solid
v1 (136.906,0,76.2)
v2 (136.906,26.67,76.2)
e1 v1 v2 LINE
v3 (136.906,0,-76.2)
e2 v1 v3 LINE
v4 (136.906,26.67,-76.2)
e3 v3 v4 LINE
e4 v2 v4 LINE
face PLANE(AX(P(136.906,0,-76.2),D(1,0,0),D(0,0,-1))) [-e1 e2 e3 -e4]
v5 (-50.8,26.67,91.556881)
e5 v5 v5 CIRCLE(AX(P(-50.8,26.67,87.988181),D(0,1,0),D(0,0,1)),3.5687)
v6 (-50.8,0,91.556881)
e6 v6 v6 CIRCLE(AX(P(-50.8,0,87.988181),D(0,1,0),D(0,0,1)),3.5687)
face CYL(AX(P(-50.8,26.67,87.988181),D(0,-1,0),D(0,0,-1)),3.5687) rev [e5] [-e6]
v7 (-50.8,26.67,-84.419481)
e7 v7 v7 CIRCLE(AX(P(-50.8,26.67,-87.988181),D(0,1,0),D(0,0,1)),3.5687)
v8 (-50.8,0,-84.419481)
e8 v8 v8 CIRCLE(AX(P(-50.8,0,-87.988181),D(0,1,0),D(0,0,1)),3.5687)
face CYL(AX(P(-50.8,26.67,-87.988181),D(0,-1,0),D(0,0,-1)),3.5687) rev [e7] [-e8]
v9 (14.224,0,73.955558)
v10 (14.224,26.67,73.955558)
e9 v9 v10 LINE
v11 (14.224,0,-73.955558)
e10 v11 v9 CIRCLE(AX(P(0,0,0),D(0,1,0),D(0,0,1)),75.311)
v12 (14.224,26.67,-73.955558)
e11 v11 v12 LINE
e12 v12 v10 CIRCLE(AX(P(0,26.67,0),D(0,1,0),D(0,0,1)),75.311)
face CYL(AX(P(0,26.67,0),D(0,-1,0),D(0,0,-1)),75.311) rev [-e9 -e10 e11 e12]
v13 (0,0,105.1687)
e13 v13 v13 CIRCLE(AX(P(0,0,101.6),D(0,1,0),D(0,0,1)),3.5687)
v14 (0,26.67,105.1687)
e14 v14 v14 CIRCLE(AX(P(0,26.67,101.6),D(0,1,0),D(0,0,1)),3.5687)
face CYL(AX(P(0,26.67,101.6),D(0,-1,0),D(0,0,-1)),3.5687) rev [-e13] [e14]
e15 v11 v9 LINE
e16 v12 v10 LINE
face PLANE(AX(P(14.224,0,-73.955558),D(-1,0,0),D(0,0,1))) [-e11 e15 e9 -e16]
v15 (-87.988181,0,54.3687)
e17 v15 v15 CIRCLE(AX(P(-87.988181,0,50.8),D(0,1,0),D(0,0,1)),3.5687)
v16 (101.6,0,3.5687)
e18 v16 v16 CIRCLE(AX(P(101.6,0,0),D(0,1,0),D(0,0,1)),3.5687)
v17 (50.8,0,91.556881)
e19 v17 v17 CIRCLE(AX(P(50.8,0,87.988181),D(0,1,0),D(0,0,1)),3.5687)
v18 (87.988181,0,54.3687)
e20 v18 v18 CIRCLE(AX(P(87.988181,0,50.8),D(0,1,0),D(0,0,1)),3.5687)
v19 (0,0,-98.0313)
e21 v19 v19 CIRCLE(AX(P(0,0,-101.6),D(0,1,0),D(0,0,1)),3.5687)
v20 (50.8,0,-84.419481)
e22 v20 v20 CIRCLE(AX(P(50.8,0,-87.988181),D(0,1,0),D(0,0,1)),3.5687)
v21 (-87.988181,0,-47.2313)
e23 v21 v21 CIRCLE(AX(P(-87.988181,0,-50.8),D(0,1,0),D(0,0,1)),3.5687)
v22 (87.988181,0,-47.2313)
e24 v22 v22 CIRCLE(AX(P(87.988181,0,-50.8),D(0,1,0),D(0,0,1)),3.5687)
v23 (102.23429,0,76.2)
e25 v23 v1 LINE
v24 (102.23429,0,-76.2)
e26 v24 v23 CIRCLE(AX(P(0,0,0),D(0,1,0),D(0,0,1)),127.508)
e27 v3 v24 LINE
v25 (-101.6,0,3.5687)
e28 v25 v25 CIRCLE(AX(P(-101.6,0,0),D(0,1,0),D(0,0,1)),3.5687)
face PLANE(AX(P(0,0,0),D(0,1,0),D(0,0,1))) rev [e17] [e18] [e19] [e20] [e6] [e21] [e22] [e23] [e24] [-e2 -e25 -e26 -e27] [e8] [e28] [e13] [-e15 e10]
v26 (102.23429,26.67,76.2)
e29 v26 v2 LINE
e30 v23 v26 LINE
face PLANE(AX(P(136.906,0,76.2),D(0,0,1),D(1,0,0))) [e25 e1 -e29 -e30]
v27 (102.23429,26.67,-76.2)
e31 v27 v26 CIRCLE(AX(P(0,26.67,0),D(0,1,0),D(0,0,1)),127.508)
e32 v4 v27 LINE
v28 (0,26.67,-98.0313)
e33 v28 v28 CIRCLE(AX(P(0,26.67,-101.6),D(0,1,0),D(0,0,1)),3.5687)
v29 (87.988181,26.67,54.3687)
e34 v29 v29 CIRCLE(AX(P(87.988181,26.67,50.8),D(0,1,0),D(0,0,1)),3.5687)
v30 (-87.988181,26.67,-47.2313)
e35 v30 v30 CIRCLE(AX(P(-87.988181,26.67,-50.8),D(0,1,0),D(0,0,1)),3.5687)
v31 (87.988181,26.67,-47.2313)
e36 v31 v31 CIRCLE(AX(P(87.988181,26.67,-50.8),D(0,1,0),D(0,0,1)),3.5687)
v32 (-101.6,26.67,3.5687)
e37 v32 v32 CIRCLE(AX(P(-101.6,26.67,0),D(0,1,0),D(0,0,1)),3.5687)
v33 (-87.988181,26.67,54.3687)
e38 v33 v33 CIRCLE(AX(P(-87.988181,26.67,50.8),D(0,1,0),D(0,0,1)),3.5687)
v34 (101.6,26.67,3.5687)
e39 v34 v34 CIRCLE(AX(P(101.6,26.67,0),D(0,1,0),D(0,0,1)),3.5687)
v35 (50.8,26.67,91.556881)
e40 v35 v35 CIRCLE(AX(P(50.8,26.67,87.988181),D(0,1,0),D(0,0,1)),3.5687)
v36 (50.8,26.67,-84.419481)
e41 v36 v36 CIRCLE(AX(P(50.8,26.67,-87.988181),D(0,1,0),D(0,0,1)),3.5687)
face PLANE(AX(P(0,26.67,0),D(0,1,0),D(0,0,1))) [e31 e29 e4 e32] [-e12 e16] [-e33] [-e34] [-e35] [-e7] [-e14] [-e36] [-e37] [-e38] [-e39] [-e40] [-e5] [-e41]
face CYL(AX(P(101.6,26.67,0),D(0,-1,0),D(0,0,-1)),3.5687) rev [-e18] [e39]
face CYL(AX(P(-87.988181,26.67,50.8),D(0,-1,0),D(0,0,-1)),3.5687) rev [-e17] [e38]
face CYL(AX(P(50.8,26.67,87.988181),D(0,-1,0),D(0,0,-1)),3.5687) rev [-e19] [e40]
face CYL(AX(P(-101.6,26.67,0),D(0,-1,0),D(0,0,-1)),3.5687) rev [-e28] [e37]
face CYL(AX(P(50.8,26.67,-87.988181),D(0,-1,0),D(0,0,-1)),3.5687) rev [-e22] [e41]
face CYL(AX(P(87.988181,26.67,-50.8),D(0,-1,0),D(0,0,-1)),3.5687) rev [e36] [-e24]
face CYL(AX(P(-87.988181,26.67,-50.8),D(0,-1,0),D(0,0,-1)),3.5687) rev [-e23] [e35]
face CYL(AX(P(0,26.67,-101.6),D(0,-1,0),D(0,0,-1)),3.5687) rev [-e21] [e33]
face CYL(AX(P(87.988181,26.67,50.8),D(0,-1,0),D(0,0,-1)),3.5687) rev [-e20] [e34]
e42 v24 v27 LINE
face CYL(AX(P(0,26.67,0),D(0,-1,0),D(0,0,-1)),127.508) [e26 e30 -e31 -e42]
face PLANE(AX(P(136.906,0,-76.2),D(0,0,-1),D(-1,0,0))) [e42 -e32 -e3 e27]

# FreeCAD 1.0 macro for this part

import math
import FreeCAD as App
import Part
import Sketcher
from FreeCAD import Vector
Q = App.Units.Quantity

doc = App.newDocument("Part")
params = doc.addObject("Spreadsheet::Sheet", "Params")
for row, (alias, value) in enumerate([
    ("sketch1_diameter", "10.04 in"),
    ("sketch1_diameter2", "5.93 in"),
    ("sketch1_diameter3", "0.281 in"),
    ("pad1_length", "1.05 in"),
    ("sketch2_height", "6 in"),
    ("sketch2_radius", "5.02 in"),
    ("sketch2_radius2", "2.965 in"),
    ("pad2_length", "1.05 in"),
], start=1):
    params.set(f"A{row}", alias)
    params.set(f"B{row}", "=" + value)
    params.setAlias(f"B{row}", alias)

body = doc.addObject("PartDesign::Body", "Body")

sketch1 = body.newObject("Sketcher::SketchObject", "Sketch")
sketch1.AttachmentSupport = (doc.getObject("XZ_Plane"), [""])
sketch1.MapMode = "FlatFace"
sketch1.addGeometry(Part.Circle(Vector(0, 0, 0), Vector(0, 0, 1), 127.5), False)
sketch1.addGeometry(Part.Circle(Vector(-50.8, 88, 0), Vector(0, 0, 1), 3.6), False)
sketch1.addGeometry(Part.Circle(Vector(-88, 50.8, 0), Vector(0, 0, 1), 3.6), False)
sketch1.addGeometry(Part.Circle(Vector(0, 101.6, 0), Vector(0, 0, 1), 3.6), False)
sketch1.addGeometry(Part.Circle(Vector(50.8, 88, 0), Vector(0, 0, 1), 3.6), False)
sketch1.addGeometry(Part.Circle(Vector(88, 50.8, 0), Vector(0, 0, 1), 3.6), False)
sketch1.addGeometry(Part.Circle(Vector(-101.6, 0, 0), Vector(0, 0, 1), 3.6), False)
sketch1.addGeometry(Part.Circle(Vector(-88, -50.8, 0), Vector(0, 0, 1), 3.6), False)
sketch1.addGeometry(Part.Circle(Vector(-50.8, -88, 0), Vector(0, 0, 1), 3.6), False)
sketch1.addGeometry(Part.Circle(Vector(0, 0, 0), Vector(0, 0, 1), 75.3), False)
sketch1.addGeometry(Part.Circle(Vector(101.6, 0, 0), Vector(0, 0, 1), 3.6), False)
sketch1.addGeometry(Part.Circle(Vector(88, -50.8, 0), Vector(0, 0, 1), 3.6), False)
sketch1.addGeometry(Part.Circle(Vector(0, -101.6, 0), Vector(0, 0, 1), 3.6), False)
sketch1.addGeometry(Part.Circle(Vector(50.8, -88, 0), Vector(0, 0, 1), 3.6), False)
sketch1.addConstraint(Sketcher.Constraint("Coincident", 0, 3, -1, 1))
sketch1.addConstraint(Sketcher.Constraint("Coincident", 9, 3, -1, 1))
sketch1.addConstraint(Sketcher.Constraint("Equal", 1, 2))
sketch1.addConstraint(Sketcher.Constraint("Equal", 2, 3))
sketch1.addConstraint(Sketcher.Constraint("Equal", 3, 4))
sketch1.addConstraint(Sketcher.Constraint("Equal", 4, 5))
sketch1.addConstraint(Sketcher.Constraint("Equal", 5, 6))
sketch1.addConstraint(Sketcher.Constraint("Equal", 6, 7))
sketch1.addConstraint(Sketcher.Constraint("Equal", 7, 8))
sketch1.addConstraint(Sketcher.Constraint("Equal", 8, 10))
sketch1.addConstraint(Sketcher.Constraint("Equal", 10, 11))
sketch1.addConstraint(Sketcher.Constraint("Equal", 11, 12))
sketch1.addConstraint(Sketcher.Constraint("Equal", 12, 13))
sketch1.addConstraint(Sketcher.Constraint("Symmetric", 5, 3, 7, 3, -1, 1))
sketch1.addConstraint(Sketcher.Constraint("Symmetric", 4, 3, 8, 3, -1, 1))
sketch1.addConstraint(Sketcher.Constraint("Symmetric", 6, 3, 10, 3, -1, 1))
sketch1.addConstraint(Sketcher.Constraint("Symmetric", 2, 3, 11, 3, -1, 1))
sketch1.addConstraint(Sketcher.Constraint("Symmetric", 3, 3, 12, 3, -1, 1))
sketch1.addConstraint(Sketcher.Constraint("Symmetric", 1, 3, 13, 3, -1, 1))
sketch1.addConstraint(Sketcher.Constraint("Symmetric", 1, 3, 4, 3, -2))
sketch1.addConstraint(Sketcher.Constraint("Symmetric", 2, 3, 5, 3, -2))
sketch1.addConstraint(Sketcher.Constraint("PointOnObject", 3, 3, -2))
sketch1.addConstraint(Sketcher.Constraint("PointOnObject", 6, 3, -1))
sketch1.addConstraint(Sketcher.Constraint("Diameter", 0, Q("10.04 in")))
sketch1.addConstraint(Sketcher.Constraint("Diameter", 9, Q("5.93 in")))
sketch1.addConstraint(Sketcher.Constraint("Diameter", 1, Q("0.281 in")))
sketch1.addConstraint(Sketcher.Constraint("DistanceX", 1, 3, -1, 1, Q("2 in")))
sketch1.addConstraint(Sketcher.Constraint("DistanceY", -1, 1, 2, 3, Q("2 in")))
sketch1.addConstraint(Sketcher.Constraint("DistanceY", -1, 1, 3, 3, Q("4 in")))
sketch1.addConstraint(Sketcher.Constraint("DistanceX", 6, 3, -1, 1, Q("4 in")))
sketch1.addConstraint(Sketcher.Constraint("DistanceY", -1, 1, 1, 3, 87.988181))
sketch1.addConstraint(Sketcher.Constraint("DistanceX", 2, 3, -1, 1, 87.988181))
sketch1.setExpression("Constraints[23]", "Params.sketch1_diameter")
sketch1.setExpression("Constraints[24]", "Params.sketch1_diameter2")
sketch1.setExpression("Constraints[25]", "Params.sketch1_diameter3")
pad1 = body.newObject("PartDesign::Pad", "Pad")
pad1.Profile = sketch1
pad1.setExpression("Length", "Params.pad1_length")
pad1.Reversed = True

sketch2 = body.newObject("Sketcher::SketchObject", "Sketch001")
sketch2.AttachmentSupport = (doc.getObject("XZ_Plane"), [""])
sketch2.MapMode = "FlatFace"
sketch2.AttachmentOffset = App.Placement(Vector(0, 0, -1.05 * 25.4), App.Rotation())
sketch2.addGeometry(Part.LineSegment(Vector(14, -74, 0), Vector(14, 74, 0)), False)
sketch2.addGeometry(Part.ArcOfCircle(Part.Circle(Vector(0, 0, 0), Vector(0, 0, 1), 75), math.radians(-79), math.radians(79)), False)
sketch2.addGeometry(Part.LineSegment(Vector(137, 76, 0), Vector(137, -76, 0)), False)
sketch2.addGeometry(Part.LineSegment(Vector(137, -76, 0), Vector(102, -76, 0)), False)
sketch2.addGeometry(Part.ArcOfCircle(Part.Circle(Vector(0, 0, 0), Vector(0, 0, 1), 128), math.radians(-37), math.radians(37)), False)
sketch2.addGeometry(Part.LineSegment(Vector(102, 76, 0), Vector(137, 76, 0)), False)
sketch2.addConstraint(Sketcher.Constraint("Coincident", 0, 1, 1, 1))
sketch2.addConstraint(Sketcher.Constraint("Coincident", 1, 2, 0, 2))
sketch2.addConstraint(Sketcher.Constraint("Coincident", 2, 2, 3, 1))
sketch2.addConstraint(Sketcher.Constraint("Coincident", 3, 2, 4, 1))
sketch2.addConstraint(Sketcher.Constraint("Coincident", 4, 2, 5, 1))
sketch2.addConstraint(Sketcher.Constraint("Coincident", 5, 2, 2, 1))
sketch2.addConstraint(Sketcher.Constraint("Vertical", 0))
sketch2.addConstraint(Sketcher.Constraint("Vertical", 2))
sketch2.addConstraint(Sketcher.Constraint("Horizontal", 3))
sketch2.addConstraint(Sketcher.Constraint("Horizontal", 5))
sketch2.addConstraint(Sketcher.Constraint("Coincident", 1, 3, -1, 1))
sketch2.addConstraint(Sketcher.Constraint("Coincident", 4, 3, -1, 1))
sketch2.addConstraint(Sketcher.Constraint("Vertical", 3, 2, 4, 2))
sketch2.addConstraint(Sketcher.Constraint("DistanceY", 2, 2, 2, 1, Q("6 in")))
sketch2.addConstraint(Sketcher.Constraint("Radius", 4, Q("5.02 in")))
sketch2.addConstraint(Sketcher.Constraint("Radius", 1, Q("2.965 in")))
sketch2.addConstraint(Sketcher.Constraint("DistanceX", -1, 1, 0, 1, Q("0.56 in")))
sketch2.addConstraint(Sketcher.Constraint("DistanceX", -1, 1, 2, 2, Q("5.39 in")))
sketch2.setExpression("Constraints[13]", "Params.sketch2_height")
sketch2.setExpression("Constraints[14]", "Params.sketch2_radius")
sketch2.setExpression("Constraints[15]", "Params.sketch2_radius2")
pad2 = body.newObject("PartDesign::Pad", "Pad001")
pad2.Profile = sketch2
pad2.setExpression("Length", "Params.pad2_length")

doc.recompute()
